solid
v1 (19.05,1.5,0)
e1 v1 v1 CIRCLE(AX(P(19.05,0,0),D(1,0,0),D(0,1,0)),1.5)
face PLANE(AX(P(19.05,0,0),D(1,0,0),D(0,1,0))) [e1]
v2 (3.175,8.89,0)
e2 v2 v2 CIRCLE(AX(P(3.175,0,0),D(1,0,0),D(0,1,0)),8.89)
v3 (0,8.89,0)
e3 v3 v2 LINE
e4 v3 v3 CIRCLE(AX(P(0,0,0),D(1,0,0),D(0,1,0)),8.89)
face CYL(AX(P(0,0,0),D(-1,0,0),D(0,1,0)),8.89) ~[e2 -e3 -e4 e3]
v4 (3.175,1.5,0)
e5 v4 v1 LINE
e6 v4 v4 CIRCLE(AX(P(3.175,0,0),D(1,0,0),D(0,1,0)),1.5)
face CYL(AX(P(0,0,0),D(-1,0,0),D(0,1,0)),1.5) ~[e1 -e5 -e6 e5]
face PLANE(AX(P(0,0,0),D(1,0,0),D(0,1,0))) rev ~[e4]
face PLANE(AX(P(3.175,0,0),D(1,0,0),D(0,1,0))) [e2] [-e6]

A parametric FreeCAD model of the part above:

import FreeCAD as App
import Part
import Sketcher

V = App.Vector
Q = App.Units.Quantity

doc = App.newDocument("Part")
body = doc.addObject("PartDesign::Body", "Body")

# Sketch on YZ plane
sketch1 = body.newObject("Sketcher::SketchObject", "Sketch")
sketch1.AttachmentSupport = (doc.getObject("YZ_Plane"), [""])
sketch1.MapMode = "FlatFace"
sketch1.addGeometry(Part.Circle(V(0, 0, 0), V(0, 0, 1), 8.9), False)
sketch1.addGeometry(Part.Circle(V(0, 0, 0), V(0, 0, 1), 1.5), False)
sketch1.addConstraint(Sketcher.Constraint("Coincident", 0, 3, -1, 1))
sketch1.addConstraint(Sketcher.Constraint("Coincident", 1, 3, -1, 1))
sketch1.addConstraint(Sketcher.Constraint("Diameter", 0, Q("0.7 in")))
sketch1.addConstraint(Sketcher.Constraint("Diameter", 1, Q("0.1181 in")))
pad1 = body.newObject("PartDesign::Pad", "Pad")
pad1.Profile = sketch1
pad1.Length = Q("0.125 in")

# Sketch on YZ plane
sketch2 = body.newObject("Sketcher::SketchObject", "Sketch001")
sketch2.AttachmentSupport = (doc.getObject("YZ_Plane"), [""])
sketch2.MapMode = "FlatFace"
sketch2.addGeometry(Part.Circle(V(0, 0, 0), V(0, 0, 1), 1.5), False)
sketch2.addConstraint(Sketcher.Constraint("Coincident", 0, 3, -1, 1))
sketch2.addConstraint(Sketcher.Constraint("Diameter", 0, Q("0.1181 in")))
pad2 = body.newObject("PartDesign::Pad", "Pad001")
pad2.Profile = sketch2
pad2.Length = Q("0.75 in")

doc.recompute()
